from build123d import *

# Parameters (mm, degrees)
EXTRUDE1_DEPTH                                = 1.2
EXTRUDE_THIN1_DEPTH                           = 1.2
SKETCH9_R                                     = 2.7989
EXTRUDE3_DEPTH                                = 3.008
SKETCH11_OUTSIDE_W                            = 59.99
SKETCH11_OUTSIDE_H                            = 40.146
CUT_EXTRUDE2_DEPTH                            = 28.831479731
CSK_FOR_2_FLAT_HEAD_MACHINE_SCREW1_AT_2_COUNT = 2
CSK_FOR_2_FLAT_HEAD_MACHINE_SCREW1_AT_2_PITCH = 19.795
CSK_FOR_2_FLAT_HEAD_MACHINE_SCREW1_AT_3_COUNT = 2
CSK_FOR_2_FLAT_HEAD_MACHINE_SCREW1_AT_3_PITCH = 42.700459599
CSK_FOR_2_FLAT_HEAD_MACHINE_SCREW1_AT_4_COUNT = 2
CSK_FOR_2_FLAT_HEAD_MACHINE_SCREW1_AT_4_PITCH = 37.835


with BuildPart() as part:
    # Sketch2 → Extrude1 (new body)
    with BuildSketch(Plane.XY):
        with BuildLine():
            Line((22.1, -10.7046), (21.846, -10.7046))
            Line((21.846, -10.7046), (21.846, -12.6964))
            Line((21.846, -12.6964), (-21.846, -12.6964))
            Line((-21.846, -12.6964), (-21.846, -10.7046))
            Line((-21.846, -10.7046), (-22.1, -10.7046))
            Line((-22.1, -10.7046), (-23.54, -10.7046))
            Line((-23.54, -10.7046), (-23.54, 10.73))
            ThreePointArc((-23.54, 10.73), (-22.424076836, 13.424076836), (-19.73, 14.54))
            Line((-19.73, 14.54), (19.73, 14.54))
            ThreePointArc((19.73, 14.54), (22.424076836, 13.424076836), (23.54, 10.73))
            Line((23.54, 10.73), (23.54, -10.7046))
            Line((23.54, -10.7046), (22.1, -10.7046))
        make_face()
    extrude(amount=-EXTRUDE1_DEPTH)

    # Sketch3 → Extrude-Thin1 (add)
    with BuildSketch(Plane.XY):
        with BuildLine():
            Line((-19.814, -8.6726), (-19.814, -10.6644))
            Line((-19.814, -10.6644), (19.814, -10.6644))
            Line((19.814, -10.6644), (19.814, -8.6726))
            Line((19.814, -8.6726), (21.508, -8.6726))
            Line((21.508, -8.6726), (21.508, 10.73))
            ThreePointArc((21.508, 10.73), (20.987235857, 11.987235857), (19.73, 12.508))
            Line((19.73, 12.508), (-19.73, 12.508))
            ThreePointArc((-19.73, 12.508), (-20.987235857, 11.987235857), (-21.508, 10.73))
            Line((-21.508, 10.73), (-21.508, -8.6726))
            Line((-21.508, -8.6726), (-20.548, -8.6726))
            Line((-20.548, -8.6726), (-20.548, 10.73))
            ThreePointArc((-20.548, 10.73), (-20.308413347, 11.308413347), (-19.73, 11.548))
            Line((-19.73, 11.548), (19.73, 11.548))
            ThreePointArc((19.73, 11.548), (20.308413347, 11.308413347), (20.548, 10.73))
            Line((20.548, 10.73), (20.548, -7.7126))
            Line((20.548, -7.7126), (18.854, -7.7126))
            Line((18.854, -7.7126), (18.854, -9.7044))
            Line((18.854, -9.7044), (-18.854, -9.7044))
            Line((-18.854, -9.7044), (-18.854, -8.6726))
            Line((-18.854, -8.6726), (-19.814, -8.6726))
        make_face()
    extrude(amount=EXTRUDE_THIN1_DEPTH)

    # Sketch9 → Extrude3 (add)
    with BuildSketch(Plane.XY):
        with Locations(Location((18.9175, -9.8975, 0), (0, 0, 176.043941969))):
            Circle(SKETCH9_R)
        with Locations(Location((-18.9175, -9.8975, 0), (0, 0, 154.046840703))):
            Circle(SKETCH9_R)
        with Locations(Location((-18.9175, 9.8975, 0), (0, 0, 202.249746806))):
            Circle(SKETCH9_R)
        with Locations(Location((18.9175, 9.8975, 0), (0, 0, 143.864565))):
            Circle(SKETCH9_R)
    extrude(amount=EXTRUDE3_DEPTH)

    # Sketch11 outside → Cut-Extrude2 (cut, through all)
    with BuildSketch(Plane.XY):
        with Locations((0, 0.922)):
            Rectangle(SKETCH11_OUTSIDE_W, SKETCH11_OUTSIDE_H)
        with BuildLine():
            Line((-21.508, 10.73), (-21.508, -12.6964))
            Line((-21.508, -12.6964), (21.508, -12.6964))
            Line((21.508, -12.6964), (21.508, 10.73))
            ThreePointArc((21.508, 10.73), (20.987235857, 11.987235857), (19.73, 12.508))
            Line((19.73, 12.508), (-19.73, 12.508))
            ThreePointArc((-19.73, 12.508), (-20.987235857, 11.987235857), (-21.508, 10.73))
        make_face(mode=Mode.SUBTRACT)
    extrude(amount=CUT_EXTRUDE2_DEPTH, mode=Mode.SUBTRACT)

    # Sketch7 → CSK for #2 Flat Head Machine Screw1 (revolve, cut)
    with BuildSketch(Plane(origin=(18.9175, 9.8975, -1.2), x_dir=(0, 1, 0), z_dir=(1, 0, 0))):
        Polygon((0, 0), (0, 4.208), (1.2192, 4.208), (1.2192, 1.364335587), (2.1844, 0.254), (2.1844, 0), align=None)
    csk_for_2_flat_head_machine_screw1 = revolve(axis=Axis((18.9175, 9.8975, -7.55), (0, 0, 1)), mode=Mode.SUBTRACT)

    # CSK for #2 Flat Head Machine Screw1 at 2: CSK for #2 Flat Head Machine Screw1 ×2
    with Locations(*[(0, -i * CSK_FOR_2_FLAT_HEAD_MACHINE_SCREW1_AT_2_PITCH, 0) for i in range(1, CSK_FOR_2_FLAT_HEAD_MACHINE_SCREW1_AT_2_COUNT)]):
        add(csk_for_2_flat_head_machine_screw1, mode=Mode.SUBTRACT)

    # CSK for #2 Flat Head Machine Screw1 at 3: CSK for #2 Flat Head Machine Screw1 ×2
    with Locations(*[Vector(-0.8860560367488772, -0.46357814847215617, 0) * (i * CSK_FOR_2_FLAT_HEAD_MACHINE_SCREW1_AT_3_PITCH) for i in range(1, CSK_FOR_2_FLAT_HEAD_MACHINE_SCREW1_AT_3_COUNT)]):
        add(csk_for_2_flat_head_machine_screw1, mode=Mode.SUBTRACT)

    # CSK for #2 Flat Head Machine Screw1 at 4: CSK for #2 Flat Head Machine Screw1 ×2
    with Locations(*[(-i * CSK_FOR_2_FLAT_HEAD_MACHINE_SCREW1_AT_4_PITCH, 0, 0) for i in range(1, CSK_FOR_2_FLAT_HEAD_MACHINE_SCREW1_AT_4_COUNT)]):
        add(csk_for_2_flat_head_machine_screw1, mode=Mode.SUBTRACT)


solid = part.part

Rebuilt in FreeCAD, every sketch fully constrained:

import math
import FreeCAD as App
import Part
import Sketcher

V = App.Vector
Q = App.Units.Quantity

doc = App.newDocument("Part")
body = doc.addObject("PartDesign::Body", "Body")

sketch1 = doc.addObject("Sketcher::SketchObject", "Sketch")
body.addObject(sketch1)
sketch1.AttachmentSupport = (doc.XY_Plane, [""])
sketch1.MapMode = "FlatFace"
sketch1.addGeometry([
    Part.LineSegment(V(21.846, -12.6964, 0), V(21.846, -10.7046, 0)),
    Part.LineSegment(V(21.846, -10.7046, 0), V(23.54, -10.7046, 0)),
    Part.LineSegment(V(23.54, -10.7046, 0), V(23.54, 10.73, 0)),
    Part.ArcOfCircle(Part.Circle(V(19.73, 10.73, 0), V(0, 0, 1), 3.81), math.radians(0), math.radians(90)),
    Part.LineSegment(V(19.73, 14.54, 0), V(-19.73, 14.54, 0)),
    Part.ArcOfCircle(Part.Circle(V(-19.73, 10.73, 0), V(0, 0, 1), 3.81), math.radians(90), math.radians(180)),
    Part.LineSegment(V(-23.54, 10.73, 0), V(-23.54, -10.7046, 0)),
    Part.LineSegment(V(-23.54, -10.7046, 0), V(-21.846, -10.7046, 0)),
    Part.LineSegment(V(-21.846, -10.7046, 0), V(-21.846, -12.6964, 0)),
    Part.LineSegment(V(-21.846, -12.6964, 0), V(21.846, -12.6964, 0)),
], False)
sketch1.addConstraint([
    Sketcher.Constraint("Coincident", 0, 2, 1, 1),
    Sketcher.Constraint("Coincident", 1, 2, 2, 1),
    Sketcher.Constraint("Tangent", 2, 2, 3, 1),
    Sketcher.Constraint("Tangent", 3, 2, 4, 1),
    Sketcher.Constraint("Tangent", 4, 2, 5, 1),
    Sketcher.Constraint("Tangent", 5, 2, 6, 1),
    Sketcher.Constraint("Coincident", 6, 2, 7, 1),
    Sketcher.Constraint("Coincident", 7, 2, 8, 1),
    Sketcher.Constraint("Coincident", 8, 2, 9, 1),
    Sketcher.Constraint("Coincident", 9, 2, 0, 1),
    Sketcher.Constraint("Vertical", 0),
    Sketcher.Constraint("Horizontal", 1),
    Sketcher.Constraint("Vertical", 2),
    Sketcher.Constraint("Horizontal", 4),
    Sketcher.Constraint("Vertical", 6),
    Sketcher.Constraint("Horizontal", 7),
    Sketcher.Constraint("Vertical", 8),
    Sketcher.Constraint("Horizontal", 9),
    Sketcher.Constraint("Equal", 3, 5),
    Sketcher.Constraint("Symmetric", 1, 2, 6, 2, -2),
    Sketcher.Constraint("Equal", 1, 7),
    Sketcher.Constraint("Radius", 3, Q("0.15 in")),
    Sketcher.Constraint("DistanceX", 1, 1, 1, 2, Q("1.694 mm")),
    Sketcher.Constraint("DistanceX", 4, 2, 4, 1, Q("39.46 mm")),
    Sketcher.Constraint("DistanceY", 0, 1, 0, 2, Q("1.9918 mm")),
    Sketcher.Constraint("DistanceY", 2, 1, 2, 2, Q("21.4346 mm")),
    Sketcher.Constraint("DistanceY", -1, 1, 3, 3, Q("10.73 mm")),
])
pad1 = doc.addObject("PartDesign::Pad", "Pad")
body.addObject(pad1)
pad1.Profile = sketch1
pad1.Length = 1.2
pad1.Reversed = True

sketch2 = doc.addObject("Sketcher::SketchObject", "Sketch001")
body.addObject(sketch2)
sketch2.AttachmentSupport = (doc.XY_Plane, [""])
sketch2.MapMode = "FlatFace"
sketch2.addGeometry([
    Part.LineSegment(V(-19.814, -8.6726, 0), V(-19.814, -10.6644, 0)),
    Part.LineSegment(V(-19.814, -10.6644, 0), V(19.814, -10.6644, 0)),
    Part.LineSegment(V(19.814, -10.6644, 0), V(19.814, -8.6726, 0)),
    Part.LineSegment(V(19.814, -8.6726, 0), V(21.508, -8.6726, 0)),
    Part.LineSegment(V(21.508, -8.6726, 0), V(21.508, 10.73, 0)),
    Part.ArcOfCircle(Part.Circle(V(19.73, 10.73, 0), V(0, 0, 1), 1.778), math.radians(0), math.radians(90)),
    Part.LineSegment(V(19.73, 12.508, 0), V(-19.73, 12.508, 0)),
    Part.ArcOfCircle(Part.Circle(V(-19.73, 10.73, 0), V(0, 0, 1), 1.778), math.radians(90), math.radians(180)),
    Part.LineSegment(V(-21.508, 10.73, 0), V(-21.508, -8.6726, 0)),
    Part.LineSegment(V(-21.508, -8.6726, 0), V(-20.548, -8.6726, 0)),
    Part.LineSegment(V(-20.548, -8.6726, 0), V(-20.548, 10.73, 0)),
    Part.ArcOfCircle(Part.Circle(V(-19.73, 10.73, 0), V(0, 0, 1), 0.818), math.radians(90), math.radians(180)),
    Part.LineSegment(V(-19.73, 11.548, 0), V(19.73, 11.548, 0)),
    Part.ArcOfCircle(Part.Circle(V(19.73, 10.73, 0), V(0, 0, 1), 0.818), math.radians(0), math.radians(90)),
    Part.LineSegment(V(20.548, 10.73, 0), V(20.548, -7.7126, 0)),
    Part.LineSegment(V(20.548, -7.7126, 0), V(18.854, -7.7126, 0)),
    Part.LineSegment(V(18.854, -7.7126, 0), V(18.854, -9.7044, 0)),
    Part.LineSegment(V(18.854, -9.7044, 0), V(-18.854, -9.7044, 0)),
    Part.LineSegment(V(-18.854, -9.7044, 0), V(-18.854, -8.6726, 0)),
    Part.LineSegment(V(-18.854, -8.6726, 0), V(-19.814, -8.6726, 0)),
], False)
sketch2.addConstraint([
    Sketcher.Constraint("Coincident", 0, 2, 1, 1),
    Sketcher.Constraint("Coincident", 1, 2, 2, 1),
    Sketcher.Constraint("Coincident", 2, 2, 3, 1),
    Sketcher.Constraint("Coincident", 3, 2, 4, 1),
    Sketcher.Constraint("Tangent", 4, 2, 5, 1),
    Sketcher.Constraint("Tangent", 5, 2, 6, 1),
    Sketcher.Constraint("Tangent", 6, 2, 7, 1),
    Sketcher.Constraint("Tangent", 7, 2, 8, 1),
    Sketcher.Constraint("Coincident", 8, 2, 9, 1),
    Sketcher.Constraint("Coincident", 9, 2, 10, 1),
    Sketcher.Constraint("Tangent", 10, 2, 11, 2),
    Sketcher.Constraint("Tangent", 11, 1, 12, 1),
    Sketcher.Constraint("Tangent", 12, 2, 13, 2),
    Sketcher.Constraint("Tangent", 13, 1, 14, 1),
    Sketcher.Constraint("Coincident", 14, 2, 15, 1),
    Sketcher.Constraint("Coincident", 15, 2, 16, 1),
    Sketcher.Constraint("Coincident", 16, 2, 17, 1),
    Sketcher.Constraint("Coincident", 17, 2, 18, 1),
    Sketcher.Constraint("Coincident", 18, 2, 19, 1),
    Sketcher.Constraint("Coincident", 19, 2, 0, 1),
    Sketcher.Constraint("Vertical", 0),
    Sketcher.Constraint("Horizontal", 1),
    Sketcher.Constraint("Vertical", 2),
    Sketcher.Constraint("Horizontal", 3),
    Sketcher.Constraint("Vertical", 4),
    Sketcher.Constraint("Horizontal", 6),
    Sketcher.Constraint("Vertical", 8),
    Sketcher.Constraint("Horizontal", 9),
    Sketcher.Constraint("Vertical", 10),
    Sketcher.Constraint("Horizontal", 12),
    Sketcher.Constraint("Vertical", 14),
    Sketcher.Constraint("Horizontal", 15),
    Sketcher.Constraint("Vertical", 16),
    Sketcher.Constraint("Horizontal", 17),
    Sketcher.Constraint("Vertical", 18),
    Sketcher.Constraint("Horizontal", 19),
    Sketcher.Constraint("Coincident", 11, 3, 7, 3),
    Sketcher.Constraint("Coincident", 13, 3, 5, 3),
    Sketcher.Constraint("Equal", 5, 7),
    Sketcher.Constraint("Symmetric", 3, 2, 8, 2, -2),
    Sketcher.Constraint("Symmetric", 2, 2, 19, 2, -2),
    Sketcher.Constraint("Equal", 3, 15),
    Sketcher.Constraint("Equal", 9, 19),
    Sketcher.Constraint("Equal", 2, 16),
    Sketcher.Constraint("Radius", 5, Q("0.07 in")),
    Sketcher.Constraint("Radius", 11, Q("0.818 mm")),
    Sketcher.Constraint("DistanceX", 1, 1, 1, 2, Q("39.628 mm")),
    Sketcher.Constraint("DistanceX", 3, 1, 3, 2, Q("1.694 mm")),
    Sketcher.Constraint("DistanceY", 0, 2, 0, 1, Q("1.9918 mm")),
    Sketcher.Constraint("DistanceY", 4, 1, 4, 2, Q("19.4026 mm")),
    Sketcher.Constraint("DistanceY", 14, 2, 14, 1, Q("18.4426 mm")),
    Sketcher.Constraint("DistanceY", -1, 1, 5, 3, Q("10.73 mm")),
])
pad2 = doc.addObject("PartDesign::Pad", "Pad001")
body.addObject(pad2)
pad2.Profile = sketch2
pad2.Length = 1.2

sketch3 = doc.addObject("Sketcher::SketchObject", "Sketch002")
body.addObject(sketch3)
sketch3.AttachmentSupport = (doc.XY_Plane, [""])
sketch3.MapMode = "FlatFace"
sketch3.addGeometry([
    Part.Circle(V(18.9175, -9.8975, 0), V(0, 0, 1), 2.7989),
    Part.Circle(V(-18.9175, -9.8975, 0), V(0, 0, 1), 2.7989),
    Part.Circle(V(-18.9175, 9.8975, 0), V(0, 0, 1), 2.7989),
    Part.Circle(V(18.9175, 9.8975, 0), V(0, 0, 1), 2.7989),
], False)
sketch3.addConstraint([
    Sketcher.Constraint("Equal", 0, 1),
    Sketcher.Constraint("Equal", 1, 2),
    Sketcher.Constraint("Equal", 2, 3),
    Sketcher.Constraint("Symmetric", 0, 3, 2, 3, -1, 1),
    Sketcher.Constraint("Symmetric", 1, 3, 3, 3, -1, 1),
    Sketcher.Constraint("Symmetric", 0, 3, 1, 3, -2),
    Sketcher.Constraint("Diameter", 0, Q("5.5978 mm")),
    Sketcher.Constraint("DistanceX", -1, 1, 0, 3, Q("18.9175 mm")),
    Sketcher.Constraint("DistanceY", 0, 3, -1, 1, Q("9.8975 mm")),
])
pad3 = doc.addObject("PartDesign::Pad", "Pad002")
body.addObject(pad3)
pad3.Profile = sketch3
pad3.Length = 3.008

sketch4 = doc.addObject("Sketcher::SketchObject", "Sketch003")
body.addObject(sketch4)
sketch4.AttachmentSupport = (doc.XY_Plane, [""])
sketch4.MapMode = "FlatFace"
sketch4.addGeometry([
    Part.LineSegment(V(-29.995, 20.995, 0), V(-29.995, -19.151, 0)),
    Part.LineSegment(V(-29.995, -19.151, 0), V(29.995, -19.151, 0)),
    Part.LineSegment(V(29.995, -19.151, 0), V(29.995, 20.995, 0)),
    Part.LineSegment(V(29.995, 20.995, 0), V(-29.995, 20.995, 0)),
    Part.LineSegment(V(-21.508, -12.6964, 0), V(-21.508, 10.73, 0)),
    Part.ArcOfCircle(Part.Circle(V(-19.73, 10.73, 0), V(0, 0, 1), 1.778), math.radians(90), math.radians(180)),
    Part.LineSegment(V(-19.73, 12.508, 0), V(19.73, 12.508, 0)),
    Part.ArcOfCircle(Part.Circle(V(19.73, 10.73, 0), V(0, 0, 1), 1.778), math.radians(0), math.radians(90)),
    Part.LineSegment(V(21.508, 10.73, 0), V(21.508, -12.6964, 0)),
    Part.LineSegment(V(21.508, -12.6964, 0), V(-21.508, -12.6964, 0)),
], False)
sketch4.addConstraint([
    Sketcher.Constraint("Coincident", 0, 2, 1, 1),
    Sketcher.Constraint("Coincident", 1, 2, 2, 1),
    Sketcher.Constraint("Coincident", 2, 2, 3, 1),
    Sketcher.Constraint("Coincident", 3, 2, 0, 1),
    Sketcher.Constraint("Tangent", 4, 2, 5, 2),
    Sketcher.Constraint("Tangent", 5, 1, 6, 1),
    Sketcher.Constraint("Tangent", 6, 2, 7, 2),
    Sketcher.Constraint("Tangent", 7, 1, 8, 1),
    Sketcher.Constraint("Coincident", 8, 2, 9, 1),
    Sketcher.Constraint("Coincident", 9, 2, 4, 1),
    Sketcher.Constraint("Vertical", 0),
    Sketcher.Constraint("Horizontal", 1),
    Sketcher.Constraint("Vertical", 2),
    Sketcher.Constraint("Horizontal", 3),
    Sketcher.Constraint("Vertical", 4),
    Sketcher.Constraint("Horizontal", 6),
    Sketcher.Constraint("Vertical", 8),
    Sketcher.Constraint("Horizontal", 9),
    Sketcher.Constraint("Equal", 5, 7),
    Sketcher.Constraint("Radius", 5, Q("0.07 in")),
    Sketcher.Constraint("DistanceX", 1, 1, 1, 2, Q("59.99 mm")),
    Sketcher.Constraint("DistanceX", 6, 1, 6, 2, Q("39.46 mm")),
    Sketcher.Constraint("DistanceY", 0, 2, 0, 1, Q("40.146 mm")),
    Sketcher.Constraint("DistanceY", 4, 1, 4, 2, Q("23.4264 mm")),
    Sketcher.Constraint("DistanceX", 5, 3, -1, 1, Q("19.73 mm")),
    Sketcher.Constraint("DistanceY", -1, 1, 5, 3, Q("10.73 mm")),
    Sketcher.Constraint("DistanceX", 0, 2, -1, 1, Q("29.995 mm")),
    Sketcher.Constraint("DistanceY", 0, 2, -1, 1, Q("19.151 mm")),
])
pocket1 = doc.addObject("PartDesign::Pocket", "Pocket")
body.addObject(pocket1)
pocket1.Profile = sketch4
pocket1.Type = "ThroughAll"
pocket1.Reversed = True

sketch5 = doc.addObject("Sketcher::SketchObject", "Sketch004")
body.addObject(sketch5)
sketch5.AttachmentSupport = (doc.YZ_Plane, [""])
sketch5.MapMode = "FlatFace"
sketch5.AttachmentOffset = App.Placement(V(0, 0, 18.9175), App.Rotation())
sketch5.addGeometry([
    Part.LineSegment(V(9.8975, 3.008, 0), V(9.8975, -1.2, 0)),
    Part.LineSegment(V(9.8975, -1.2, 0), V(12.0819, -1.2, 0)),
    Part.LineSegment(V(12.0819, -1.2, 0), V(12.0819, -0.946, 0)),
    Part.LineSegment(V(12.0819, -0.946, 0), V(11.1167, 0.164336, 0)),
    Part.LineSegment(V(11.1167, 0.164336, 0), V(11.1167, 3.008, 0)),
    Part.LineSegment(V(11.1167, 3.008, 0), V(9.8975, 3.008, 0)),
], False)
sketch5.addGeometry(Part.LineSegment(V(9.8975, -1.2, 0), V(9.8975, 3.008, 0)), True)
sketch5.addConstraint([
    Sketcher.Constraint("Coincident", 0, 2, 1, 1),
    Sketcher.Constraint("Coincident", 1, 2, 2, 1),
    Sketcher.Constraint("Coincident", 2, 2, 3, 1),
    Sketcher.Constraint("Coincident", 3, 2, 4, 1),
    Sketcher.Constraint("Coincident", 4, 2, 5, 1),
    Sketcher.Constraint("Coincident", 5, 2, 0, 1),
    Sketcher.Constraint("Vertical", 0),
    Sketcher.Constraint("Horizontal", 1),
    Sketcher.Constraint("Vertical", 2),
    Sketcher.Constraint("Vertical", 4),
    Sketcher.Constraint("Horizontal", 5),
    Sketcher.Constraint("Vertical", 6),
    Sketcher.Constraint("Coincident", 6, 1, 0, 2),
    Sketcher.Constraint("Horizontal", 4, 2, 6, 2),
    Sketcher.Constraint("Angle", 3, Q("131 deg")),
    Sketcher.Constraint("DistanceY", 2, 1, 2, 2, Q("0.01 in")),
    Sketcher.Constraint("DistanceX", 1, 1, 1, 2, Q("0.086 in")),
    Sketcher.Constraint("DistanceX", 5, 2, 5, 1, Q("0.048 in")),
    Sketcher.Constraint("DistanceY", 0, 2, 0, 1, Q("4.208 mm")),
    Sketcher.Constraint("DistanceX", -1, 1, 0, 2, Q("9.8975 mm")),
    Sketcher.Constraint("DistanceY", 0, 2, -1, 1, Q("1.2 mm")),
])
groove = doc.addObject("PartDesign::Groove", "Groove")
body.addObject(groove)
groove.Profile = sketch5
groove.ReferenceAxis = (sketch5, ["Axis0"])
groove.Angle = 360
doc.recompute()

linearpattern = doc.addObject("PartDesign::LinearPattern", "LinearPattern")
body.addObject(linearpattern)
linearpattern.Originals = [groove]
linearpattern.Direction = (doc.Y_Axis, [""])
linearpattern.Mode = "offset"
linearpattern.Offset = 19.795
linearpattern.Occurrences = 2
linearpattern.Reversed = True
body.Tip = linearpattern
doc.recompute()

datumline = doc.addObject("PartDesign::Line", "DatumLine")
body.addObject(datumline)
datumline.Placement = App.Placement(V(0, 0, 0), App.Rotation(V(0, 0, 1), V(-0.886056037, -0.463578148, 0)))
linearpattern2 = doc.addObject("PartDesign::LinearPattern", "LinearPattern001")
body.addObject(linearpattern2)
linearpattern2.Originals = [groove]
linearpattern2.Direction = (datumline, [""])
linearpattern2.Mode = "offset"
linearpattern2.Offset = 42.70046
linearpattern2.Occurrences = 2
body.Tip = linearpattern2
doc.recompute()

linearpattern3 = doc.addObject("PartDesign::LinearPattern", "LinearPattern002")
body.addObject(linearpattern3)
linearpattern3.Originals = [groove]
linearpattern3.Direction = (doc.X_Axis, [""])
linearpattern3.Mode = "offset"
linearpattern3.Offset = 37.835
linearpattern3.Occurrences = 2
linearpattern3.Reversed = True
body.Tip = linearpattern3

doc.recompute()
